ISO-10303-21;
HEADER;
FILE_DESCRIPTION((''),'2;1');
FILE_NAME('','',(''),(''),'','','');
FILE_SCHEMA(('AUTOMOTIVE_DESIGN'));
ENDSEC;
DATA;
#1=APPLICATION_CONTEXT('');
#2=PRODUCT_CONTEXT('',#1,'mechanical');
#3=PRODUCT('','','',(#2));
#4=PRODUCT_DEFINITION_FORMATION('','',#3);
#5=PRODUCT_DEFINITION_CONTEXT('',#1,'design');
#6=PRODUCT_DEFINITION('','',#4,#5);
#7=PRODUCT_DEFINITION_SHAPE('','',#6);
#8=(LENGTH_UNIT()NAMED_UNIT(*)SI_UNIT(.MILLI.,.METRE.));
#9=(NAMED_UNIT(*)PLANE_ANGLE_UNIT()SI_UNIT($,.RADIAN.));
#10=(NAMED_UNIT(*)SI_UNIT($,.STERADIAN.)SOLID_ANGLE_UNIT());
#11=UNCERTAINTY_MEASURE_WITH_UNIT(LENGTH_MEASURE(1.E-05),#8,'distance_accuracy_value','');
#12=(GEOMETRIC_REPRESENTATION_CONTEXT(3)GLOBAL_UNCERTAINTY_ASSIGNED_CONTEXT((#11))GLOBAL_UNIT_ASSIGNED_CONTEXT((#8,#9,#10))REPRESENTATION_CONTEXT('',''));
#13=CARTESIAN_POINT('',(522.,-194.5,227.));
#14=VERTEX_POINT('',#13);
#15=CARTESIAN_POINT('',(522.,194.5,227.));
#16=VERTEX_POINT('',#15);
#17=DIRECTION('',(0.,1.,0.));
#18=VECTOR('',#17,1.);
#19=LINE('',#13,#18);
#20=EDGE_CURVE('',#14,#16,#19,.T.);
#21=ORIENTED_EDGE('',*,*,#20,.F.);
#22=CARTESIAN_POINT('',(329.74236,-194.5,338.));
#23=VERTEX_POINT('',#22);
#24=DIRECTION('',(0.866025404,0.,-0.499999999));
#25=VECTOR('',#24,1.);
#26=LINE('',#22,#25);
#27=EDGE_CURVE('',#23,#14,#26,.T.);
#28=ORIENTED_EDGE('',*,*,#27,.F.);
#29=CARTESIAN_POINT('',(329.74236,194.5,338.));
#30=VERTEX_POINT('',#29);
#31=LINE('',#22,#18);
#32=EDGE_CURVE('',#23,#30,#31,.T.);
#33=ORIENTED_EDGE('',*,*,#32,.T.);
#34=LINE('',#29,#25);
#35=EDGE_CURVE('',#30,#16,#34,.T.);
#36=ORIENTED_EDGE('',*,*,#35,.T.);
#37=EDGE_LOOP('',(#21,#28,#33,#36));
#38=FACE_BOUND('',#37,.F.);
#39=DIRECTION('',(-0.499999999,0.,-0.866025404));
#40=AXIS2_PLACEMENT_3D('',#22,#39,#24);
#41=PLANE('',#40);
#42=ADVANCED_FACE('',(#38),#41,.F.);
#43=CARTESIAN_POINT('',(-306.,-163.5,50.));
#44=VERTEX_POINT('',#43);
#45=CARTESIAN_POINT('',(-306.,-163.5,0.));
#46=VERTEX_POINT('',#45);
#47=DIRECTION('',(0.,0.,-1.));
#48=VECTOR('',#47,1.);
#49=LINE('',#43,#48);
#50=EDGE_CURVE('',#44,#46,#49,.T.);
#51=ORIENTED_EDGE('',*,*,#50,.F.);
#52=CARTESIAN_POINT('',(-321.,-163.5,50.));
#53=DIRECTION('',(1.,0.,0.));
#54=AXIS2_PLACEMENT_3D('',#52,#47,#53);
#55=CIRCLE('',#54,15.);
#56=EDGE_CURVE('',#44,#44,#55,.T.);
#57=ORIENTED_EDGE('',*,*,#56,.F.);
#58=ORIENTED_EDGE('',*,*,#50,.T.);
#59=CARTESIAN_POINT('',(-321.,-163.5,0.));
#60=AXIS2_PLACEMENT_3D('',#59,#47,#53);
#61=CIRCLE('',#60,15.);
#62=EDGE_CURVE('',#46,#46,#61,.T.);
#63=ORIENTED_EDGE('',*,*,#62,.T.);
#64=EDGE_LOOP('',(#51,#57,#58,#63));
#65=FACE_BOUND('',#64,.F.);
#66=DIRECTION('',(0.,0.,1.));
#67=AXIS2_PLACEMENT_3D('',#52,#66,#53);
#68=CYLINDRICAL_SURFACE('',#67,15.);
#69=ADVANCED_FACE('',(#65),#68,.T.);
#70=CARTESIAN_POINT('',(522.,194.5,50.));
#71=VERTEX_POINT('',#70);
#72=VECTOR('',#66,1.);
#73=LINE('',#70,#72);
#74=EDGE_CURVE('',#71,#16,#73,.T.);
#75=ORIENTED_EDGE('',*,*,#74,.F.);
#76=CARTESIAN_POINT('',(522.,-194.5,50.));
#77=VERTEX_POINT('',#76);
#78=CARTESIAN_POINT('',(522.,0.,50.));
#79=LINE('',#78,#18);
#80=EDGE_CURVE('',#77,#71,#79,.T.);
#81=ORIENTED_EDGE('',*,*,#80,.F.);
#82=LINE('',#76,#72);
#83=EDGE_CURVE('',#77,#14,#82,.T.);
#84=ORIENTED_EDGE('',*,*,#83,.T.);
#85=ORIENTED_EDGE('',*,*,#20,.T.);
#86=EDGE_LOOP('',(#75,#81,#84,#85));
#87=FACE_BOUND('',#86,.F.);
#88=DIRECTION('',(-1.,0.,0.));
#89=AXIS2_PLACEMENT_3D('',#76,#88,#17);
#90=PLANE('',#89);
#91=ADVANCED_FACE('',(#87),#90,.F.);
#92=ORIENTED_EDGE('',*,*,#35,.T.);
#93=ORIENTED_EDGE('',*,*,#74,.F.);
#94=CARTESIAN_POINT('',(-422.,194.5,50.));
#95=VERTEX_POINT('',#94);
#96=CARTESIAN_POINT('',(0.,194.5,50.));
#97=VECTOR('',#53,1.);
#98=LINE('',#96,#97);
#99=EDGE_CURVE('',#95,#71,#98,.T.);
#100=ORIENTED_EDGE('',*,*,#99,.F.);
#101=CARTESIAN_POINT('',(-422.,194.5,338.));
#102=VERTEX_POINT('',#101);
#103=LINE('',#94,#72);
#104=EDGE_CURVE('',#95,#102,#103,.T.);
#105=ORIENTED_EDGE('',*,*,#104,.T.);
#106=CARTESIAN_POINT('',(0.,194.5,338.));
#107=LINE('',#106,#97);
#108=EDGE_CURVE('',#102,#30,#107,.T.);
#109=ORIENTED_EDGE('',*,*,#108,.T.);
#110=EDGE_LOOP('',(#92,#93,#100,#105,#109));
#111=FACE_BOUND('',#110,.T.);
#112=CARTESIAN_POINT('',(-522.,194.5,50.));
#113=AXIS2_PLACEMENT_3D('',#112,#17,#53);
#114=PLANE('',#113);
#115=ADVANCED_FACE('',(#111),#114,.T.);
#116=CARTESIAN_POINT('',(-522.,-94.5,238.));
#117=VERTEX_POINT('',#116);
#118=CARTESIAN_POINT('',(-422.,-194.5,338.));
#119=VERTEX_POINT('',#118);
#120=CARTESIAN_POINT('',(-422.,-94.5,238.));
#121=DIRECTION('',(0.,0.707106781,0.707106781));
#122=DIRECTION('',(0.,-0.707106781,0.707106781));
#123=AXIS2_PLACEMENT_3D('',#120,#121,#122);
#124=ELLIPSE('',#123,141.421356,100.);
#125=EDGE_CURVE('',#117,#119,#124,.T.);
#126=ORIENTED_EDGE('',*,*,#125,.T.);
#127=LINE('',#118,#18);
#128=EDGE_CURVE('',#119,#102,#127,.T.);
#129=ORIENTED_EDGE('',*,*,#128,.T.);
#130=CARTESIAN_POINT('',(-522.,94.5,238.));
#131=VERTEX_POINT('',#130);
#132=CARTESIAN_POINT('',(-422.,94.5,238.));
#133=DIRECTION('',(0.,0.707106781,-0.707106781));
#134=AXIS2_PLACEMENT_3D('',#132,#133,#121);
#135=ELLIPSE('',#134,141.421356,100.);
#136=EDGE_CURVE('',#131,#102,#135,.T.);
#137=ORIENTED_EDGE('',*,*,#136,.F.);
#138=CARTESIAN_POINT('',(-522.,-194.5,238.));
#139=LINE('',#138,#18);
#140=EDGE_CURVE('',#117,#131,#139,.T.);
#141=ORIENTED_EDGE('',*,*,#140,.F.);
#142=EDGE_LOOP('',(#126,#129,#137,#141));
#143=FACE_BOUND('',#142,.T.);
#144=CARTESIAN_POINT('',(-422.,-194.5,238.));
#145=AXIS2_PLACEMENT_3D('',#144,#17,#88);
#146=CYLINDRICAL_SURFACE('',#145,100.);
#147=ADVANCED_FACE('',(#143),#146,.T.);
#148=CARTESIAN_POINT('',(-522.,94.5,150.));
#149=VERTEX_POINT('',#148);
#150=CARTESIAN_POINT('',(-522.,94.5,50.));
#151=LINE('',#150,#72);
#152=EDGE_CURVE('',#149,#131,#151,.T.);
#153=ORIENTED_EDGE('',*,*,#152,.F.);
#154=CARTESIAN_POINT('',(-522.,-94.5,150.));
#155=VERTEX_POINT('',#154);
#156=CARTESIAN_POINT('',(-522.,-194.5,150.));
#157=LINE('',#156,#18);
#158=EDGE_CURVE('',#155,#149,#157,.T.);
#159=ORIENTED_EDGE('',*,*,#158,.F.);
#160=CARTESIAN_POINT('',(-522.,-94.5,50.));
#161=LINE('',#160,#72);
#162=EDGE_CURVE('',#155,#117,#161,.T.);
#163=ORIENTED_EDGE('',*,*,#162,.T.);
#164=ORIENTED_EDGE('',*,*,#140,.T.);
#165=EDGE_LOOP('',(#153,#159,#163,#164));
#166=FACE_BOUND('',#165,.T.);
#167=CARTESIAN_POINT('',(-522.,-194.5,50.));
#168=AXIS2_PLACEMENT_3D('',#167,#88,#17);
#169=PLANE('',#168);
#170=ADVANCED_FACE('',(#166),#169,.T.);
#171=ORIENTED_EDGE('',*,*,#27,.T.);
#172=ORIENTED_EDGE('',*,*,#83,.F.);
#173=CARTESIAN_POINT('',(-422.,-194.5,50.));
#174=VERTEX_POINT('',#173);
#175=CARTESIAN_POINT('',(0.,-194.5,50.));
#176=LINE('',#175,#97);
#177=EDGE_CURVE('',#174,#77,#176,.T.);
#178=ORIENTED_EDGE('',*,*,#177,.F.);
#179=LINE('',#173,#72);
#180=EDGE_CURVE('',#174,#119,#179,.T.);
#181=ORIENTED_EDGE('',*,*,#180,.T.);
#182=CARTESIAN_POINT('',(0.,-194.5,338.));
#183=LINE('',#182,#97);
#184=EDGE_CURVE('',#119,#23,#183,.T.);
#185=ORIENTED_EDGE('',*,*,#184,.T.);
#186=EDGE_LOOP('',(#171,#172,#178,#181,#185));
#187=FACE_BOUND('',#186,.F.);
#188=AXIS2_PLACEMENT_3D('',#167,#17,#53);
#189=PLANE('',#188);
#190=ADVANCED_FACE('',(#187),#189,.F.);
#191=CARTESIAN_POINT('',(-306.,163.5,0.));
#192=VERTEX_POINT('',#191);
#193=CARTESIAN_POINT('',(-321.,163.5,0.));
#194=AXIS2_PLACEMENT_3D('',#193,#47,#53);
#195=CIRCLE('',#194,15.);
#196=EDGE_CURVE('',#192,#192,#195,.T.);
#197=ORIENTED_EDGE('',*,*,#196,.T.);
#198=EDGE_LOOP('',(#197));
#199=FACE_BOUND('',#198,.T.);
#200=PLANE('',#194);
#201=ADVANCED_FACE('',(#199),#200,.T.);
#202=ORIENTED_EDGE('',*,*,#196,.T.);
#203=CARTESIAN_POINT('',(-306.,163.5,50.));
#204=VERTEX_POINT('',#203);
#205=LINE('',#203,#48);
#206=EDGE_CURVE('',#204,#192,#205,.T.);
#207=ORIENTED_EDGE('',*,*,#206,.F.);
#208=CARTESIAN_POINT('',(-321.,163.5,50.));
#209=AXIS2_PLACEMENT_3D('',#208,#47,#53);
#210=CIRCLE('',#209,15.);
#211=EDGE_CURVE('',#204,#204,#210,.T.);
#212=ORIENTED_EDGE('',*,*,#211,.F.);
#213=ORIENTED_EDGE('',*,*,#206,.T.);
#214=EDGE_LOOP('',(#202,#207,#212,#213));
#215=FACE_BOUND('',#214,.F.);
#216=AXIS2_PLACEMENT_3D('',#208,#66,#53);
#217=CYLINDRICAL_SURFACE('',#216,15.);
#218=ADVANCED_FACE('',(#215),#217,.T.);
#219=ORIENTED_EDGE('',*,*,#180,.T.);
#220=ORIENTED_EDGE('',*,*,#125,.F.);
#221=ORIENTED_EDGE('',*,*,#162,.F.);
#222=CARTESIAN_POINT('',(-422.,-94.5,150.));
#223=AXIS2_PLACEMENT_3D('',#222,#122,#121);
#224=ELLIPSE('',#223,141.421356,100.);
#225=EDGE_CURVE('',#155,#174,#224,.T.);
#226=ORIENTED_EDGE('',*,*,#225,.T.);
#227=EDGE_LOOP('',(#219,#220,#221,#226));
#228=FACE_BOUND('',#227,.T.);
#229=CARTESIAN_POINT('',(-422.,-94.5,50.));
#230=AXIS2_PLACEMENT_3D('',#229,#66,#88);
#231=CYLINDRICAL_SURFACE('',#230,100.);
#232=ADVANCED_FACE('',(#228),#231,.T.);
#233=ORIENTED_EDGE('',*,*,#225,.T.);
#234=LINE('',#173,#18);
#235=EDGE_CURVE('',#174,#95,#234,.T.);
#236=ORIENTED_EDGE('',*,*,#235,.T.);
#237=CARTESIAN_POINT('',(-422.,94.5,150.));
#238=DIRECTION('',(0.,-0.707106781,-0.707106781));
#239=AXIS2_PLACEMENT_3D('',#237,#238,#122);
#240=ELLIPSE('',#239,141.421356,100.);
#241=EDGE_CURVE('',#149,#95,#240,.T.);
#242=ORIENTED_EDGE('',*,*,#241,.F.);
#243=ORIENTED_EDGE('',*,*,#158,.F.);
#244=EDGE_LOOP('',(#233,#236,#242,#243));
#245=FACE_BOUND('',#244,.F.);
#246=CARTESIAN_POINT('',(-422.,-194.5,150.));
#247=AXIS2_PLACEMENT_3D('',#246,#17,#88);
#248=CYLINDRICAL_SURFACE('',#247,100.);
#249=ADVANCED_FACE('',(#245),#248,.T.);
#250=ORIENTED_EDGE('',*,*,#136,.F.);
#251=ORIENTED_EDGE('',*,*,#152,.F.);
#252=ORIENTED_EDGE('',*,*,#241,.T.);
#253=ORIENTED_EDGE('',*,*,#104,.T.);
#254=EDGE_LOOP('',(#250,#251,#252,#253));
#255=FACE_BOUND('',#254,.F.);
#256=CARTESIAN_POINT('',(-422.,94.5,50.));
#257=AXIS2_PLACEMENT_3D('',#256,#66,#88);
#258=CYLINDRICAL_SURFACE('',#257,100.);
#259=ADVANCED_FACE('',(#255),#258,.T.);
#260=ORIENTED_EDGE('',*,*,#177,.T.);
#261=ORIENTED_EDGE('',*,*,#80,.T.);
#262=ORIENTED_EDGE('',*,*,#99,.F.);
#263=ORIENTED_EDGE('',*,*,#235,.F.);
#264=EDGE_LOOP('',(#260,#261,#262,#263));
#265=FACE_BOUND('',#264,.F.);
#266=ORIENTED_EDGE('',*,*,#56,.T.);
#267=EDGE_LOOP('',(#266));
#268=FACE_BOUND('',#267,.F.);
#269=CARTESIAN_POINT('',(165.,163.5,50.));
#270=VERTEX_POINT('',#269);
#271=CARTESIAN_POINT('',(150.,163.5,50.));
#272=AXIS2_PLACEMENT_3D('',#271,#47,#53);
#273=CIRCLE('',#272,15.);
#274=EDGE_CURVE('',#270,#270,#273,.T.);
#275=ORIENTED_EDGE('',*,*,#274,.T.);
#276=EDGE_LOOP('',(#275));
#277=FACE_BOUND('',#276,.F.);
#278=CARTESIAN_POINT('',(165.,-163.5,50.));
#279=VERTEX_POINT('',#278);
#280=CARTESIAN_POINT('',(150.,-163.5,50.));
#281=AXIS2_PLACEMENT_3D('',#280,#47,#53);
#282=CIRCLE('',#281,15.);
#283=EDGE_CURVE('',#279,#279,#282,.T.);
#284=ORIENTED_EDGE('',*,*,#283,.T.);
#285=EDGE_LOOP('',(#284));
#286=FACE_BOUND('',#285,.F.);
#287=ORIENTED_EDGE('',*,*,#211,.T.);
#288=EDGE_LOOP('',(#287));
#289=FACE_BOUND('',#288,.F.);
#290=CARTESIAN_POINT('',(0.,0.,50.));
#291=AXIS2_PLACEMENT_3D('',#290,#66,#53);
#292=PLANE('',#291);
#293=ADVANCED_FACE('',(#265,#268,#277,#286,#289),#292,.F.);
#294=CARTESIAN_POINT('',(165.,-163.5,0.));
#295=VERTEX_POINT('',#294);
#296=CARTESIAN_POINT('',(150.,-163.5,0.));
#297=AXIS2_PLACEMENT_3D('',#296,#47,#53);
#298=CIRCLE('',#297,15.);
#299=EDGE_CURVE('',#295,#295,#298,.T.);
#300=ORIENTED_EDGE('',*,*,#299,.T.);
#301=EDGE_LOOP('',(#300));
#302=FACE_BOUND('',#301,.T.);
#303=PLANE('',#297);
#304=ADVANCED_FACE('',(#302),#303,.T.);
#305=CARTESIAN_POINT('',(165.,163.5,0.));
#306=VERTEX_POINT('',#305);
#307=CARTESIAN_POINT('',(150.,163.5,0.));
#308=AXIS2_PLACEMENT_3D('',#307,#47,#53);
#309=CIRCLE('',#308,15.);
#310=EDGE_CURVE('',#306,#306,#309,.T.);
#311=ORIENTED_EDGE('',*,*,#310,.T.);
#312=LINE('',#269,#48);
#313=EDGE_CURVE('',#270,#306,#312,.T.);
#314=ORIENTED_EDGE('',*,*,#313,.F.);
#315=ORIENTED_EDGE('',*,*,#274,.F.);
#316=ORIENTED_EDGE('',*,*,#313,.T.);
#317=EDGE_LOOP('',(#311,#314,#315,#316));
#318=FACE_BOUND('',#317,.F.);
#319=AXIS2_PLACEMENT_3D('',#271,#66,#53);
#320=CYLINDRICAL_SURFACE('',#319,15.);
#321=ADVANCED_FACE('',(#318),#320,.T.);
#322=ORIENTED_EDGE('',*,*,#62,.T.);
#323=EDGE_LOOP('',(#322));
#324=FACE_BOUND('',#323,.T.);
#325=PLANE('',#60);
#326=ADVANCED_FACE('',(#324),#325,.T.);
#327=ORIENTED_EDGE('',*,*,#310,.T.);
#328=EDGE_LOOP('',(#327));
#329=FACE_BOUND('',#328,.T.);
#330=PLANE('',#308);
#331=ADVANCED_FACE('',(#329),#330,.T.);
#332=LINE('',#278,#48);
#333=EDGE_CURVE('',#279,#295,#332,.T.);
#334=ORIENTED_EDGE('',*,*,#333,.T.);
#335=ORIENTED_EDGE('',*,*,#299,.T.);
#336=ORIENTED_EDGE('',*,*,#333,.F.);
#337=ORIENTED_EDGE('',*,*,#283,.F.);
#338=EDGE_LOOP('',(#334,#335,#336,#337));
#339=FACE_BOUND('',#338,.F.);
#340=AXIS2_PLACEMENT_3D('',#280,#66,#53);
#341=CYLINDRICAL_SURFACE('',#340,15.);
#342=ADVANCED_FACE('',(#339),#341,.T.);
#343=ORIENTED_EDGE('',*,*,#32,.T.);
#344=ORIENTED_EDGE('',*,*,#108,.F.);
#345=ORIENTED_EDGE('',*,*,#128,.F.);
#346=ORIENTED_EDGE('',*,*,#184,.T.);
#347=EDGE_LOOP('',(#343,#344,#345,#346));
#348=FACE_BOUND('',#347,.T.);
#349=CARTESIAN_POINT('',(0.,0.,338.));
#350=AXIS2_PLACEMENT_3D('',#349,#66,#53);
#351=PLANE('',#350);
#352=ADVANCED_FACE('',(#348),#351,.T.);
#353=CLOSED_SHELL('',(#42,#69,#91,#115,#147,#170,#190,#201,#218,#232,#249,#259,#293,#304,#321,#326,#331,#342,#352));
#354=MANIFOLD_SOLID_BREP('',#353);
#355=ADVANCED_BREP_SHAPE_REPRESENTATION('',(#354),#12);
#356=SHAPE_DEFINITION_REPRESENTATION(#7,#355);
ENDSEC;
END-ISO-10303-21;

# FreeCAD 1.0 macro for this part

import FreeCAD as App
import Part
import Sketcher

V = App.Vector
Q = App.Units.Quantity


def edges_at(feature, points):
    """Names of the edges that pass closest to the given points."""
    edges = feature.Shape.Edges
    near = lambda p: min(range(len(edges)), key=lambda i: edges[i].distToShape(Part.Vertex(*p))[0])
    return sorted({f"Edge{near(p) + 1}" for p in points})

doc = App.newDocument("Part")
body = doc.addObject("PartDesign::Body", "Body")

# Sketch on XY plane
sketch1 = body.newObject("Sketcher::SketchObject", "Sketch")
sketch1.AttachmentSupport = (doc.getObject("XY_Plane"), [""])
sketch1.MapMode = "FlatFace"
sketch1.addGeometry([
    Part.LineSegment(V(-522, 194.5, 0), V(-522, -194.5, 0)),
    Part.LineSegment(V(-522, -194.5, 0), V(522, -194.5, 0)),
    Part.LineSegment(V(522, -194.5, 0), V(522, 194.5, 0)),
    Part.LineSegment(V(522, 194.5, 0), V(-522, 194.5, 0)),
], False)
sketch1.addConstraint([
    Sketcher.Constraint("Coincident", 0, 2, 1, 1),
    Sketcher.Constraint("Coincident", 1, 2, 2, 1),
    Sketcher.Constraint("Coincident", 2, 2, 3, 1),
    Sketcher.Constraint("Coincident", 3, 2, 0, 1),
    Sketcher.Constraint("Vertical", 0),
    Sketcher.Constraint("Horizontal", 1),
    Sketcher.Constraint("Vertical", 2),
    Sketcher.Constraint("Horizontal", 3),
    Sketcher.Constraint("Symmetric", 0, 2, 2, 2, -1, 1),
    Sketcher.Constraint("DistanceX", 1, 1, 1, 2, Q("1044 mm")),
    Sketcher.Constraint("DistanceY", 0, 2, 0, 1, Q("389 mm")),
])
pad1 = body.newObject("PartDesign::Pad", "Pad")
pad1.Profile = sketch1
pad1.Length = 288

# Sketch on XZ plane
sketch2 = body.newObject("Sketcher::SketchObject", "Sketch001")
sketch2.AttachmentSupport = (doc.getObject("XZ_Plane"), [""])
sketch2.MapMode = "FlatFace"
sketch2.AttachmentOffset = App.Placement(V(0, 0, 194.5), App.Rotation())
sketch2.addGeometry([
    Part.LineSegment(V(522, 288, 0), V(329.74236, 288, 0)),
    Part.LineSegment(V(329.74236, 288, 0), V(522, 177, 0)),
    Part.LineSegment(V(522, 177, 0), V(522, 288, 0)),
], False)
sketch2.addConstraint([
    Sketcher.Constraint("Coincident", 0, 2, 1, 1),
    Sketcher.Constraint("Coincident", 1, 2, 2, 1),
    Sketcher.Constraint("Coincident", 2, 2, 0, 1),
    Sketcher.Constraint("Horizontal", 0),
    Sketcher.Constraint("Vertical", 2),
    Sketcher.Constraint("DistanceY", 2, 1, 2, 2, Q("111 mm")),
    Sketcher.Constraint("Angle", 1, Q("-30 deg")),
    Sketcher.Constraint("DistanceY", -1, 1, 0, 2, Q("288 mm")),
    Sketcher.Constraint("DistanceX", -1, 1, 1, 2, Q("522 mm")),
])
pocket1 = body.newObject("PartDesign::Pocket", "Pocket")
pocket1.Profile = sketch2
pocket1.Type = "ThroughAll"
doc.recompute()

fillet = body.newObject("PartDesign::Fillet", "Fillet")
fillet.Base = (pocket1, edges_at(pocket1, [
    (-522, 194.5, 144),
    (-522, -194.5, 144),
    (-522, 0, 0),
    (-522, 0, 288),
]))
fillet.Radius = 100

# Sketch on XY plane
sketch3 = body.newObject("Sketcher::SketchObject", "Sketch002")
sketch3.AttachmentSupport = (doc.getObject("XY_Plane"), [""])
sketch3.MapMode = "FlatFace"
sketch3.addGeometry([
    Part.Circle(V(150, -163.5, 0), V(0, 0, 1), 15),
    Part.Circle(V(-321, -163.5, 0), V(0, 0, 1), 15),
    Part.Circle(V(-321, 163.5, 0), V(0, 0, 1), 15),
    Part.Circle(V(150, 163.5, 0), V(0, 0, 1), 15),
], False)
sketch3.addConstraint([
    Sketcher.Constraint("Equal", 0, 1),
    Sketcher.Constraint("Equal", 1, 2),
    Sketcher.Constraint("Equal", 2, 3),
    Sketcher.Constraint("Symmetric", 1, 3, 2, 3, -1),
    Sketcher.Constraint("Symmetric", 0, 3, 3, 3, -1),
    Sketcher.Constraint("Horizontal", 0, 3, 1, 3),
    Sketcher.Constraint("Diameter", 0, Q("30 mm")),
    Sketcher.Constraint("DistanceX", -1, 1, 0, 3, Q("150 mm")),
    Sketcher.Constraint("DistanceX", 1, 3, -1, 1, Q("321 mm")),
    Sketcher.Constraint("DistanceY", 1, 3, 2, 3, Q("327 mm")),
])
pad2 = body.newObject("PartDesign::Pad", "Pad001")
pad2.Profile = sketch3
pad2.Length = 50
pad2.Reversed = True
body2 = doc.addObject("PartDesign::Body", "Body001")
doc.recompute()

body.Placement = App.Placement(V(0, 0, 50), App.Rotation(V(0, 0, 1), 0))
boolean = body2.newObject("PartDesign::Boolean", "Boolean")
boolean.Type = "Fuse"
boolean.addObjects([body])

doc.recompute()
